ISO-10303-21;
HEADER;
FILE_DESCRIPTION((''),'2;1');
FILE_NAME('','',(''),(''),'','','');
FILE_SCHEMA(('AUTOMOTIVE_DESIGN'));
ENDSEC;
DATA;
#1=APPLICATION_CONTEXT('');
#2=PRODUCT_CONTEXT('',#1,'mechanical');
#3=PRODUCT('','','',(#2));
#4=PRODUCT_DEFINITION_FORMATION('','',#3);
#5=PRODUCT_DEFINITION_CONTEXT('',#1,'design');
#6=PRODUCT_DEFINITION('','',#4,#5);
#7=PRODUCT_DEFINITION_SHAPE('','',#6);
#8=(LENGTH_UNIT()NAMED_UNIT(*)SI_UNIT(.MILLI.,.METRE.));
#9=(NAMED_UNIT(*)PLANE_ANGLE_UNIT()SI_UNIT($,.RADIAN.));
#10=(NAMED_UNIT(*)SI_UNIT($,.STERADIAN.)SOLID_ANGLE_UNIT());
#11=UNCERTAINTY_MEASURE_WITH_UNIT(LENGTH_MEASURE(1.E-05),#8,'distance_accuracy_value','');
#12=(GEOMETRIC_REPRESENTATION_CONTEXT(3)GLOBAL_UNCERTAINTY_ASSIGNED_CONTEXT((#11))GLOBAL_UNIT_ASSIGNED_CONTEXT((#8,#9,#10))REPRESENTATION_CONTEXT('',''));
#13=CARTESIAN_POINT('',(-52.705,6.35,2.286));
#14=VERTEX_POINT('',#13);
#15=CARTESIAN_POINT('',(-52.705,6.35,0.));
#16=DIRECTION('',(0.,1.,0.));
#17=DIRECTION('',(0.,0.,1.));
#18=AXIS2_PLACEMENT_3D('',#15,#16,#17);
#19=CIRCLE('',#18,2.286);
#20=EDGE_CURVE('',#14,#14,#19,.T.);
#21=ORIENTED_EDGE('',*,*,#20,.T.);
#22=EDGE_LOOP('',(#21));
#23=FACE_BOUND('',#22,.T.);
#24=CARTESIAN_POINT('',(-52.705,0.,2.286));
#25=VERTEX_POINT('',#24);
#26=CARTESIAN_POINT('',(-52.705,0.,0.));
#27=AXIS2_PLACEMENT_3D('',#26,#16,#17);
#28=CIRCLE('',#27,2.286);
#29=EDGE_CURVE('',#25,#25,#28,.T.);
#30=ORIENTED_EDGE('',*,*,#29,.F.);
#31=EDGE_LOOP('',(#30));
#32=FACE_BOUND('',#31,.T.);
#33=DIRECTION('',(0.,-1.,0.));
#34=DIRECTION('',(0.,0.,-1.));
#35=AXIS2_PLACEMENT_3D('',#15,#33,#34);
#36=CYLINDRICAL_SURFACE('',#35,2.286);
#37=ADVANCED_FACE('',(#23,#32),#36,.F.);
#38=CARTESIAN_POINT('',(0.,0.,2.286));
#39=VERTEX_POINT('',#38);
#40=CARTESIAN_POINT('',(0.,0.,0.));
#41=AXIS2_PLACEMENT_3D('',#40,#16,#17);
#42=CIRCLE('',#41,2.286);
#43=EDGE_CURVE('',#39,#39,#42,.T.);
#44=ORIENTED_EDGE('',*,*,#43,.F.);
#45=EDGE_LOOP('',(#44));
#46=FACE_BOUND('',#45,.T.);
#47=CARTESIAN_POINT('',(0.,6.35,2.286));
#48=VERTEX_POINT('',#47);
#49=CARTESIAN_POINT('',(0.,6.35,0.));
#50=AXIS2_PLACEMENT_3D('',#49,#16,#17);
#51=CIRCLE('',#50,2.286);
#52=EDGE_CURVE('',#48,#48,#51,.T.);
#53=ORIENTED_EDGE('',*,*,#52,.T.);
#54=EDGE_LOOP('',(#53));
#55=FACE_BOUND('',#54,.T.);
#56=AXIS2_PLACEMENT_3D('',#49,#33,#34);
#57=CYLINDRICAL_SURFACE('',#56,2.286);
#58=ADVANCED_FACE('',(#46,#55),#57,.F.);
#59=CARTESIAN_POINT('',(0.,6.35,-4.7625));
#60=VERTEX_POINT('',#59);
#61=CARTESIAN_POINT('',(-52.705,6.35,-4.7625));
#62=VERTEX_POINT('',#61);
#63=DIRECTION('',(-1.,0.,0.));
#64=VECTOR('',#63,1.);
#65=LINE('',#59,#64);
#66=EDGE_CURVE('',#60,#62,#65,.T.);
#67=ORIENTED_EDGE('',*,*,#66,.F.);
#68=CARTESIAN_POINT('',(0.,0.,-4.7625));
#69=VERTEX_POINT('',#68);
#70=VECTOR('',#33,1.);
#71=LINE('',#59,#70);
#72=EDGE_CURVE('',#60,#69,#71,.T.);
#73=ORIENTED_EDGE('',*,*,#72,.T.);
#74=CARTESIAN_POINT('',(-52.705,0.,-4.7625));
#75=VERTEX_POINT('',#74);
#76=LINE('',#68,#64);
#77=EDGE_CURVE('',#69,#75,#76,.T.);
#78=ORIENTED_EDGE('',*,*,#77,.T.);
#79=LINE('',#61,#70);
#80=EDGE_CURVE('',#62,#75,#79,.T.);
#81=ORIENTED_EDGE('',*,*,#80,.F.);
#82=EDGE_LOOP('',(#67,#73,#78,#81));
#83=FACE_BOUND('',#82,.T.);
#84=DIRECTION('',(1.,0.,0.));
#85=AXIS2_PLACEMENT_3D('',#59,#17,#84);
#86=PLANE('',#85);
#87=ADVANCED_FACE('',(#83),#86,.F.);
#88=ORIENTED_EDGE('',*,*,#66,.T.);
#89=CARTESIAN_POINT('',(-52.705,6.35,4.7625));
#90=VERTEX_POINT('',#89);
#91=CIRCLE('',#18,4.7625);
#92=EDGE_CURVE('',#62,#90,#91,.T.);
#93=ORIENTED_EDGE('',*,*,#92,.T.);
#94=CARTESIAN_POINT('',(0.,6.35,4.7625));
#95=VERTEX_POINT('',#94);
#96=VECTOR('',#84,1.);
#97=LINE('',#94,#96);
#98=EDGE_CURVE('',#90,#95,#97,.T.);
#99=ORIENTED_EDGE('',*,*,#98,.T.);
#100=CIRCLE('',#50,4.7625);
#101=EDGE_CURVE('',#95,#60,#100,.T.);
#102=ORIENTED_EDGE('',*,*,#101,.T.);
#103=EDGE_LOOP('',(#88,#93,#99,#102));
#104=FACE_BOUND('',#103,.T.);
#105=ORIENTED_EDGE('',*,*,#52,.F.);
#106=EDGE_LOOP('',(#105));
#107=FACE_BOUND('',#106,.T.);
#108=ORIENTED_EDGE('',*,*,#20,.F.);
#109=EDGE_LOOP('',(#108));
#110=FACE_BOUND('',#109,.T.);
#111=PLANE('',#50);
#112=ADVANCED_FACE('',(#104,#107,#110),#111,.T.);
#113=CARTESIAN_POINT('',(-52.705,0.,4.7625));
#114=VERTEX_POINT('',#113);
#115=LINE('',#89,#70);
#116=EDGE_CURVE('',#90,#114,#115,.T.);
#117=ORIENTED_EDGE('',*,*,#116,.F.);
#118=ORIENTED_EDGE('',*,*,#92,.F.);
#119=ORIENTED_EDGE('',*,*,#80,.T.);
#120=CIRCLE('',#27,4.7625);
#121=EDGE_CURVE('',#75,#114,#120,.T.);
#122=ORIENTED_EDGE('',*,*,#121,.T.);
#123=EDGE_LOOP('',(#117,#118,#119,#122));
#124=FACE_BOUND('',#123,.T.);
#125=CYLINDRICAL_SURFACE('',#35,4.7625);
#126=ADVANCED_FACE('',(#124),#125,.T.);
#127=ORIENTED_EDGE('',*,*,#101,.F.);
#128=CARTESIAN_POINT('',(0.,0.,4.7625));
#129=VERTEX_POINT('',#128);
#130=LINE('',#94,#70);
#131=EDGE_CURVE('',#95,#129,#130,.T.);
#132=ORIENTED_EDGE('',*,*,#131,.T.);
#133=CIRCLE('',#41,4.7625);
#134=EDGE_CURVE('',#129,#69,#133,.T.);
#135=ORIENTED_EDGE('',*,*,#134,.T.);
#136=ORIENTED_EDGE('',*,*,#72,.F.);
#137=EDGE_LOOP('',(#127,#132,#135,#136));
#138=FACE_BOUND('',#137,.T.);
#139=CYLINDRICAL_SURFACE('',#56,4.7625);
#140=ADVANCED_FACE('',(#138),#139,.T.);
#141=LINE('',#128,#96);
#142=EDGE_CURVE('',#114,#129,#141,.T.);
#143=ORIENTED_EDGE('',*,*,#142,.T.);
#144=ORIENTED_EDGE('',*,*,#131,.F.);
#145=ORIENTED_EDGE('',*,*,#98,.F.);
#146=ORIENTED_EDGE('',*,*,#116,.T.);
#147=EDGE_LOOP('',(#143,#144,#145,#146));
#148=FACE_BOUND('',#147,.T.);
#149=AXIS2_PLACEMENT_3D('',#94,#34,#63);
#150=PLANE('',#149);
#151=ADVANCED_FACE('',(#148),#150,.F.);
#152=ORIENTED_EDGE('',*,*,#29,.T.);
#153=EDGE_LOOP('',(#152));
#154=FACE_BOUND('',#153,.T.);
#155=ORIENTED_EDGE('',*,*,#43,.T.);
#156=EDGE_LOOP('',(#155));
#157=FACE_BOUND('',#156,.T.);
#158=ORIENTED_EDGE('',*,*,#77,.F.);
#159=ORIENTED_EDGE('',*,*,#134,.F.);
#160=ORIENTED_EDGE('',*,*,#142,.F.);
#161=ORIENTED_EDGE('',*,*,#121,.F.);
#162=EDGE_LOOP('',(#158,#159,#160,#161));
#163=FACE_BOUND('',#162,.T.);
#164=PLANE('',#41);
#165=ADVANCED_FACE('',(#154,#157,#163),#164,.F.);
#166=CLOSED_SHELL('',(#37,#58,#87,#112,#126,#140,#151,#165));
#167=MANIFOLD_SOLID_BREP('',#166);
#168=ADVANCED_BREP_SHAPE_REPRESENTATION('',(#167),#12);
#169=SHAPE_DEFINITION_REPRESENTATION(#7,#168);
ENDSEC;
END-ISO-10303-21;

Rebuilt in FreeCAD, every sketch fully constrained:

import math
import FreeCAD as App
import Part
import Sketcher
from FreeCAD import Vector
Q = App.Units.Quantity

doc = App.newDocument("Part")
body = doc.addObject("PartDesign::Body", "Body")

# Sketch on XZ plane
sketch1 = doc.addObject("Sketcher::SketchObject", "Sketch")
body.addObject(sketch1)
sketch1.AttachmentSupport = (doc.XZ_Plane, [""])
sketch1.MapMode = "FlatFace"
sketch1.addGeometry([
    Part.LineSegment(Vector(-52.705, 4.7625, 0), Vector(0, 4.7625, 0)),  # 0
    Part.ArcOfCircle(Part.Circle(Vector(0, 0, 0), Vector(0, 0, 1), 4.7625), math.radians(-90), math.radians(90)),  # 1
    Part.LineSegment(Vector(0, -4.7625, 0), Vector(-52.705, -4.7625, 0)),  # 2
    Part.ArcOfCircle(Part.Circle(Vector(-52.705, 0, 0), Vector(0, 0, 1), 4.7625), math.radians(90), math.radians(270)),  # 3
    Part.Circle(Vector(0, 0, 0), Vector(0, 0, 1), 2.286),  # 4
    Part.Circle(Vector(-52.705, 0, 0), Vector(0, 0, 1), 2.286),  # 5
], False)
sketch1.addConstraint([
    Sketcher.Constraint("Tangent", 0, 2, 1, 2),
    Sketcher.Constraint("Tangent", 1, 1, 2, 1),
    Sketcher.Constraint("Tangent", 2, 2, 3, 2),
    Sketcher.Constraint("Tangent", 3, 1, 0, 1),
    Sketcher.Constraint("Horizontal", 0),
    Sketcher.Constraint("Horizontal", 2),
    Sketcher.Constraint("Coincident", 1, 3, -1, 1),
    Sketcher.Constraint("Coincident", 4, 3, -1, 1),
    Sketcher.Constraint("Coincident", 5, 3, 3, 3),
    Sketcher.Constraint("Equal", 4, 5),
    Sketcher.Constraint("Diameter", 4, Q("0.18 in")),
    Sketcher.Constraint("Radius", 1, Q("0.1875 in")),
    Sketcher.Constraint("DistanceX", 0, 1, 0, 2, Q("2.075 in")),
])
pad1 = doc.addObject("PartDesign::Pad", "Pad")
body.addObject(pad1)
pad1.Profile = sketch1
pad1.Length = Q("0.25 in")
pad1.Reversed = True

doc.recompute()
